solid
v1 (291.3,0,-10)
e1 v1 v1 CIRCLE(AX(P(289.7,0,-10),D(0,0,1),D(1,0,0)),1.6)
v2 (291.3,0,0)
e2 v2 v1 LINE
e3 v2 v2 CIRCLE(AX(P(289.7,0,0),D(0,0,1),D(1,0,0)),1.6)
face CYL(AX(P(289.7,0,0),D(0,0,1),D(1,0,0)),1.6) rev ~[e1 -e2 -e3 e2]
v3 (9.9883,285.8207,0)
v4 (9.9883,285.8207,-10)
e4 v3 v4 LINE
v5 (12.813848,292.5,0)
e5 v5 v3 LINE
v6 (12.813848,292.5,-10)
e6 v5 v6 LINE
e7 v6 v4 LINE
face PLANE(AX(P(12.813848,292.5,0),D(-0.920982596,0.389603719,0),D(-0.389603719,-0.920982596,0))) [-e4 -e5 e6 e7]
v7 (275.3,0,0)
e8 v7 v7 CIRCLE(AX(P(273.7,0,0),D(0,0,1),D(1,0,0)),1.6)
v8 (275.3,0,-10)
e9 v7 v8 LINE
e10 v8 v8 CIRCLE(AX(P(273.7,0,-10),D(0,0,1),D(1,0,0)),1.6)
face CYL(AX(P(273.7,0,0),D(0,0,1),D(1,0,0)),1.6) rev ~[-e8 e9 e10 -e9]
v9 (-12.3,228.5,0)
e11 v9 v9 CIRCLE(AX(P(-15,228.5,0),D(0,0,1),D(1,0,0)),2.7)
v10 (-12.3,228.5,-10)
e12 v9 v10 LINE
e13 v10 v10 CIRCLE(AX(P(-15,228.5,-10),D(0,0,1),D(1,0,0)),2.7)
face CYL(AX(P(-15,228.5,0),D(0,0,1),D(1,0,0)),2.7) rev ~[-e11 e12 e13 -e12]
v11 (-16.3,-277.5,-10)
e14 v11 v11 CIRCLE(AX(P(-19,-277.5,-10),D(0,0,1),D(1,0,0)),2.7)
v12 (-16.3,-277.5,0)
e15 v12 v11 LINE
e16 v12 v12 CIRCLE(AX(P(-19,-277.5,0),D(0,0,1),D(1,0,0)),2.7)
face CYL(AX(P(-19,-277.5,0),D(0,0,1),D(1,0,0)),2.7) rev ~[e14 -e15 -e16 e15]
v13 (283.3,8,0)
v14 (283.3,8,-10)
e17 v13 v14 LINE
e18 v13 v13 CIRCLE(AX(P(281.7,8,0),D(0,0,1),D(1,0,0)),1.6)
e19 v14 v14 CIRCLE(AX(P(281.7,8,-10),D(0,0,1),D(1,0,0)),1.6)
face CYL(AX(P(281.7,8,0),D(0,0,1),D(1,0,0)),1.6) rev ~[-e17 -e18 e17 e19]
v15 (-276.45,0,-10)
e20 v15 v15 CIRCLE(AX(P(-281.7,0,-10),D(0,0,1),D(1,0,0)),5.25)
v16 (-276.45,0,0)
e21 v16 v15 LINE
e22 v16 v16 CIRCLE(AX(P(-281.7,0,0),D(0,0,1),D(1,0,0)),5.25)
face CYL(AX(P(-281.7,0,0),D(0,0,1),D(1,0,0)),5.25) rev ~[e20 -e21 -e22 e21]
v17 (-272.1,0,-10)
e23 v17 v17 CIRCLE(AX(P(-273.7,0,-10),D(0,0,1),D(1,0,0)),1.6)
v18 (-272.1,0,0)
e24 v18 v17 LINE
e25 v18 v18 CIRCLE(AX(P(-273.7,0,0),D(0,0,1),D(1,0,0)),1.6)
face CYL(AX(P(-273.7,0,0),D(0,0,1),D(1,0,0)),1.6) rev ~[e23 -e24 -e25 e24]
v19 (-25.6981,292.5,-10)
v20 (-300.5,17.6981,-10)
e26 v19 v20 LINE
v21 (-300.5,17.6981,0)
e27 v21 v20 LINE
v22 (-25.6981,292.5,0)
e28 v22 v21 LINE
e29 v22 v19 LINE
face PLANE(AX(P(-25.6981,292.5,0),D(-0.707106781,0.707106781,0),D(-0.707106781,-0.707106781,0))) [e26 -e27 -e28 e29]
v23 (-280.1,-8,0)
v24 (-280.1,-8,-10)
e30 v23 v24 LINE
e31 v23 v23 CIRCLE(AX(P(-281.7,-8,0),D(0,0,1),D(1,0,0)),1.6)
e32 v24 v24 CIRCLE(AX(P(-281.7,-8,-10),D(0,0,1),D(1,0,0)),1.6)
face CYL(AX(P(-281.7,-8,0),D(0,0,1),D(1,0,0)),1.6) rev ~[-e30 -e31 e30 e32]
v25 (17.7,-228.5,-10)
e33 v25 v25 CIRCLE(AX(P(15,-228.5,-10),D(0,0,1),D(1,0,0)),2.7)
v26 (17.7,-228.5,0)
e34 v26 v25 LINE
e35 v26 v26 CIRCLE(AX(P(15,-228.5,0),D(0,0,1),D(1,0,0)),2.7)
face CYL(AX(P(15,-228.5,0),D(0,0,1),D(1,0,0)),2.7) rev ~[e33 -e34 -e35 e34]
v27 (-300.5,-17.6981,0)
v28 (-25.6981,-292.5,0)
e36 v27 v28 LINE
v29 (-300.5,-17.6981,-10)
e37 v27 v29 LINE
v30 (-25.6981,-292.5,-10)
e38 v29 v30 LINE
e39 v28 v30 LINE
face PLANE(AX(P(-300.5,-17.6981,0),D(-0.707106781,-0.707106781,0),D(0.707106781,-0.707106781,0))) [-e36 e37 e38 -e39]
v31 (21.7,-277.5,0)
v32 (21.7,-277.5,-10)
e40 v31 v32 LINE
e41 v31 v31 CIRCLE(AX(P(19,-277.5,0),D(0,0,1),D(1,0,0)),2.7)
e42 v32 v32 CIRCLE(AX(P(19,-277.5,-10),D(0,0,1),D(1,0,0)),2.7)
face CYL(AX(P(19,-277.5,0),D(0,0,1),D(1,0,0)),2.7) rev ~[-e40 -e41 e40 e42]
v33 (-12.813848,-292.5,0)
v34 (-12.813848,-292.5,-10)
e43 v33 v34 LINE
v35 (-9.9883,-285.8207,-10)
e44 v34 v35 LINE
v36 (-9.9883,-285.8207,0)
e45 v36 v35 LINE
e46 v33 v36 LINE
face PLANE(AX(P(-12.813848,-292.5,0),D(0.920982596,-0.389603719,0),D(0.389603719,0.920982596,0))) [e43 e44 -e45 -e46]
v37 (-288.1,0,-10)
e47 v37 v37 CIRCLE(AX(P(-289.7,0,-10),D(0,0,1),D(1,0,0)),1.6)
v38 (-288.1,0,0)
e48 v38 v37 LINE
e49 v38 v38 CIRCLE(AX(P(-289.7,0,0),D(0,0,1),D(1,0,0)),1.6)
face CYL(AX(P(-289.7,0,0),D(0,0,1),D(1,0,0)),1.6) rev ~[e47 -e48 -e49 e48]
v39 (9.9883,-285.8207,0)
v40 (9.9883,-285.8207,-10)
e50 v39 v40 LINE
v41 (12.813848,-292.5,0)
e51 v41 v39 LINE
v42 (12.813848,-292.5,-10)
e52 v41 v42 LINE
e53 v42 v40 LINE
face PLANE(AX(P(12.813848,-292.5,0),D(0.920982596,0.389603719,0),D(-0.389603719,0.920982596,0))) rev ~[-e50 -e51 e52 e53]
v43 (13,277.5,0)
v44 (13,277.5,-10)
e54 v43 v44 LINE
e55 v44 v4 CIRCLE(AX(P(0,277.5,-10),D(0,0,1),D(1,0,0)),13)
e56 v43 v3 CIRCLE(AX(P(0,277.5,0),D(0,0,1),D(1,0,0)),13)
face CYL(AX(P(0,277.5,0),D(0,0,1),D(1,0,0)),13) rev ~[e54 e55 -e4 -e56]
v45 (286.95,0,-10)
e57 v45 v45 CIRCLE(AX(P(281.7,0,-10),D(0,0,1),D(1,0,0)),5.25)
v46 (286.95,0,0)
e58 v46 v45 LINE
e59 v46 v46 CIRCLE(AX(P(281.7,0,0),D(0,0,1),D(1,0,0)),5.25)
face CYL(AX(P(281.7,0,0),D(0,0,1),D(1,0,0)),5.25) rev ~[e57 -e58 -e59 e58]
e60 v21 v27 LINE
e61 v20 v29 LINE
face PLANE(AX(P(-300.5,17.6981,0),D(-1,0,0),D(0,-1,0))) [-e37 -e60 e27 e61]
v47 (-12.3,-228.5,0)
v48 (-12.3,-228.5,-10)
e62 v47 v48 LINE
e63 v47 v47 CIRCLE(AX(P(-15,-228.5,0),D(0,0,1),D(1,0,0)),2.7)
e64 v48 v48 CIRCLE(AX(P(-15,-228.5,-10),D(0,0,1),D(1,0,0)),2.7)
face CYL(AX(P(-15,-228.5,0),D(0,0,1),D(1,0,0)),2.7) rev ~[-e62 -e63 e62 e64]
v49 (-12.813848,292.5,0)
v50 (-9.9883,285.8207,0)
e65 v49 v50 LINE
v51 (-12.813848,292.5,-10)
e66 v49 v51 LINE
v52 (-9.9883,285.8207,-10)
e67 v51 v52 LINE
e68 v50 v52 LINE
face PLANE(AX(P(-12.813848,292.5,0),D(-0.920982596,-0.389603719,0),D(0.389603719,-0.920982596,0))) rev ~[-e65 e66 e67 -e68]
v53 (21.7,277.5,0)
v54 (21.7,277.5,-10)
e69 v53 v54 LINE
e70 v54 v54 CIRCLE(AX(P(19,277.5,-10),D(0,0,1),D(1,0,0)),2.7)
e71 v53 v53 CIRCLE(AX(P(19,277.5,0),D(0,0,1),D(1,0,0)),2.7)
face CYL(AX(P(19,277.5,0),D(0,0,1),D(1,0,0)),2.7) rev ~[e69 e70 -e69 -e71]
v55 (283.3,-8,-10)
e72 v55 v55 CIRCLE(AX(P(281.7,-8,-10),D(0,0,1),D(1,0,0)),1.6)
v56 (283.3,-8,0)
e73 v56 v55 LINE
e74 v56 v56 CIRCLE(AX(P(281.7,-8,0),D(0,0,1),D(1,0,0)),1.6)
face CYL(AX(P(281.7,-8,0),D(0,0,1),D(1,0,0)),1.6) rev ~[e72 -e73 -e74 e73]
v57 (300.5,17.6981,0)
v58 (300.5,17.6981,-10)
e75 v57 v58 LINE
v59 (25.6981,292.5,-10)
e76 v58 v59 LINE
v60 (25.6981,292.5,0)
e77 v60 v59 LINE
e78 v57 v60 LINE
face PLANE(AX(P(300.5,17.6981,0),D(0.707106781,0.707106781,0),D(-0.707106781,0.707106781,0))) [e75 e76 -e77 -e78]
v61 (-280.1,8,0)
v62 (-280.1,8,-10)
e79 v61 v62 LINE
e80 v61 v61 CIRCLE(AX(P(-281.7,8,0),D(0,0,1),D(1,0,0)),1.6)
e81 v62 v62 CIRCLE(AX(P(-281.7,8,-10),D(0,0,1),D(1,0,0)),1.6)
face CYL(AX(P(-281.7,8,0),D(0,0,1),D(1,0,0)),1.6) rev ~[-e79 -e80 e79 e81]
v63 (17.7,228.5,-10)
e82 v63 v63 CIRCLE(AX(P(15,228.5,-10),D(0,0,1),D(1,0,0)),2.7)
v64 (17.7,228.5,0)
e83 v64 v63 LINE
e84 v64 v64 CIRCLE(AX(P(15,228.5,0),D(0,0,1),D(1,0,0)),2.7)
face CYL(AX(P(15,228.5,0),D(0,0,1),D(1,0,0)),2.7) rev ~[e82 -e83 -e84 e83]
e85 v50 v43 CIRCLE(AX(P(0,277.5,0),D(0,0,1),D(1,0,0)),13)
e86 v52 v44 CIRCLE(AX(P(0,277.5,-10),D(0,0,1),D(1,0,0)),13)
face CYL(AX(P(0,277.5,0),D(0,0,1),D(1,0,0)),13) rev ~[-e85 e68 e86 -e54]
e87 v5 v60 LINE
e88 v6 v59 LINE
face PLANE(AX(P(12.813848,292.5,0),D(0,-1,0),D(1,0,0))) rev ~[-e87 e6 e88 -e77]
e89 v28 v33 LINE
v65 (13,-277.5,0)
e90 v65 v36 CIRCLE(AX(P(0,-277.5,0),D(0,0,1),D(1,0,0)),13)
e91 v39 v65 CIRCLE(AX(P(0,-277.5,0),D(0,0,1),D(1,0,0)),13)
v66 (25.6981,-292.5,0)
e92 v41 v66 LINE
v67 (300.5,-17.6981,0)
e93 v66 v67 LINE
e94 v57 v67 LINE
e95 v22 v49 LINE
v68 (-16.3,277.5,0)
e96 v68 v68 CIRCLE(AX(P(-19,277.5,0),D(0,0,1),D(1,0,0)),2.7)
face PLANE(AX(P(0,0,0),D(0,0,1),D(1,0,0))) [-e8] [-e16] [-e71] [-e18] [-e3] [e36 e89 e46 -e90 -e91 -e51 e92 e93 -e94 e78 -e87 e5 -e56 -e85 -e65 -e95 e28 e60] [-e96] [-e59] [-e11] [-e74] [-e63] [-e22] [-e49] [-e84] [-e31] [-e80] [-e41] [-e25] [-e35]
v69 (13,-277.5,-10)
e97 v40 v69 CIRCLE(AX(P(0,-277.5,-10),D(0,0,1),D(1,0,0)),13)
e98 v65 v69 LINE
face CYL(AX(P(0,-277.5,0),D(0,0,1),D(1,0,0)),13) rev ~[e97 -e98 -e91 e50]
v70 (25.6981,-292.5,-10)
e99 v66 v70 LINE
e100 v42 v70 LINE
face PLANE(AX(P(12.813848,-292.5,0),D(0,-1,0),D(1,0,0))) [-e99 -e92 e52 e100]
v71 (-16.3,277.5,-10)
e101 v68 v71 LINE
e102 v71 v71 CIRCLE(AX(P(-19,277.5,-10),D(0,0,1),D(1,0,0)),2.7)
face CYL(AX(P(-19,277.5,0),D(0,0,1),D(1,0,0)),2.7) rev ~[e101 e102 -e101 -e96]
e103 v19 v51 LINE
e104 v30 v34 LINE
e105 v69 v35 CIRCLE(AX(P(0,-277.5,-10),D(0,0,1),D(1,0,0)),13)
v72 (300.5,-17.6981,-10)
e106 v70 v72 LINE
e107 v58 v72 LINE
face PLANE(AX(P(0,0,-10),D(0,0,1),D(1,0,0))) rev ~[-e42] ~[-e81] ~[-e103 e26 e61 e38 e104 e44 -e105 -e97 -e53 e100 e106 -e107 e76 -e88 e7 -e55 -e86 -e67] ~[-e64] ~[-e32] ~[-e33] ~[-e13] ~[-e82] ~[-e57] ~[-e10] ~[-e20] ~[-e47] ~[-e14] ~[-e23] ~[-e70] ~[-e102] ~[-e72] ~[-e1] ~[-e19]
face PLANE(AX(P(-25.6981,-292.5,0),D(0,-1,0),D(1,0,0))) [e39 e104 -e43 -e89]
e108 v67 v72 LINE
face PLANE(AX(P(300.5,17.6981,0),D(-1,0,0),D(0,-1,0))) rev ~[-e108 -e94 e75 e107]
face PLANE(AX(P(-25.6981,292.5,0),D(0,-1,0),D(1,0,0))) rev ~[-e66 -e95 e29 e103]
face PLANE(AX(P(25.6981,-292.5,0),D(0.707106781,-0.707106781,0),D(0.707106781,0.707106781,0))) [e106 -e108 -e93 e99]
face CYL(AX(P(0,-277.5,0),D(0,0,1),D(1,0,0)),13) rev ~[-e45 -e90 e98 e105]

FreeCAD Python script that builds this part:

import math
import FreeCAD as App
import Part
import Sketcher
Q = App.Units.Quantity

doc = App.newDocument("Part")
body = doc.addObject("PartDesign::Body", "Body")

# Sketch on XY plane
sketch1 = body.newObject("Sketcher::SketchObject", "Sketch")
sketch1.AttachmentSupport = (doc.getObject("XY_Plane"), [""])
sketch1.MapMode = "FlatFace"
sketch1.addGeometry(Part.ArcOfCircle(Part.Circle(App.Vector(0, 277.5, 0), App.Vector(0, 0, 1), 13), math.radians(140.204191), math.radians(399.795809)), False)
sketch1.addGeometry(Part.LineSegment(App.Vector(-9.9883, 285.8207, 0), App.Vector(-12.813848, 292.5, 0)), False)
sketch1.addGeometry(Part.LineSegment(App.Vector(-12.813848, 292.5, 0), App.Vector(-25.6981, 292.5, 0)), False)
sketch1.addGeometry(Part.LineSegment(App.Vector(-25.6981, 292.5, 0), App.Vector(-300.5, 17.6981, 0)), False)
sketch1.addGeometry(Part.LineSegment(App.Vector(-300.5, 17.6981, 0), App.Vector(-300.5, -17.6981, 0)), False)
sketch1.addGeometry(Part.LineSegment(App.Vector(-300.5, -17.6981, 0), App.Vector(-25.6981, -292.5, 0)), False)
sketch1.addGeometry(Part.LineSegment(App.Vector(-25.6981, -292.5, 0), App.Vector(-12.813848, -292.5, 0)), False)
sketch1.addGeometry(Part.LineSegment(App.Vector(-12.813848, -292.5, 0), App.Vector(-9.9883, -285.8207, 0)), False)
sketch1.addGeometry(Part.ArcOfCircle(Part.Circle(App.Vector(0, -277.5, 0), App.Vector(0, 0, 1), 13), math.radians(-39.795809), math.radians(219.795809)), False)
sketch1.addGeometry(Part.LineSegment(App.Vector(9.9883, -285.8207, 0), App.Vector(12.813848, -292.5, 0)), False)
sketch1.addGeometry(Part.LineSegment(App.Vector(12.813848, -292.5, 0), App.Vector(25.6981, -292.5, 0)), False)
sketch1.addGeometry(Part.LineSegment(App.Vector(25.6981, -292.5, 0), App.Vector(300.5, -17.6981, 0)), False)
sketch1.addGeometry(Part.LineSegment(App.Vector(300.5, -17.6981, 0), App.Vector(300.5, 17.6981, 0)), False)
sketch1.addGeometry(Part.LineSegment(App.Vector(300.5, 17.6981, 0), App.Vector(25.6981, 292.5, 0)), False)
sketch1.addGeometry(Part.LineSegment(App.Vector(25.6981, 292.5, 0), App.Vector(12.813848, 292.5, 0)), False)
sketch1.addGeometry(Part.LineSegment(App.Vector(12.813848, 292.5, 0), App.Vector(9.9883, 285.8207, 0)), False)
sketch1.addGeometry(Part.Circle(App.Vector(-19, -277.5, 0), App.Vector(0, 0, 1), 2.7), False)
sketch1.addGeometry(Part.Circle(App.Vector(-15, -228.5, 0), App.Vector(0, 0, 1), 2.7), False)
sketch1.addGeometry(Part.Circle(App.Vector(-281.7, -8, 0), App.Vector(0, 0, 1), 1.6), False)
sketch1.addGeometry(Part.Circle(App.Vector(19, -277.5, 0), App.Vector(0, 0, 1), 2.7), False)
sketch1.addGeometry(Part.Circle(App.Vector(15, -228.5, 0), App.Vector(0, 0, 1), 2.7), False)
sketch1.addGeometry(Part.Circle(App.Vector(281.7, -8, 0), App.Vector(0, 0, 1), 1.6), False)
sketch1.addGeometry(Part.Circle(App.Vector(-289.7, 0, 0), App.Vector(0, 0, 1), 1.6), False)
sketch1.addGeometry(Part.Circle(App.Vector(-281.7, 0, 0), App.Vector(0, 0, 1), 5.25), False)
sketch1.addGeometry(Part.Circle(App.Vector(-281.7, 8, 0), App.Vector(0, 0, 1), 1.6), False)
sketch1.addGeometry(Part.Circle(App.Vector(-273.7, 0, 0), App.Vector(0, 0, 1), 1.6), False)
sketch1.addGeometry(Part.Circle(App.Vector(-15, 228.5, 0), App.Vector(0, 0, 1), 2.7), False)
sketch1.addGeometry(Part.Circle(App.Vector(-19, 277.5, 0), App.Vector(0, 0, 1), 2.7), False)
sketch1.addGeometry(Part.Circle(App.Vector(273.7, 0, 0), App.Vector(0, 0, 1), 1.6), False)
sketch1.addGeometry(Part.Circle(App.Vector(281.7, 0, 0), App.Vector(0, 0, 1), 5.25), False)
sketch1.addGeometry(Part.Circle(App.Vector(281.7, 8, 0), App.Vector(0, 0, 1), 1.6), False)
sketch1.addGeometry(Part.Circle(App.Vector(289.7, 0, 0), App.Vector(0, 0, 1), 1.6), False)
sketch1.addGeometry(Part.Circle(App.Vector(15, 228.5, 0), App.Vector(0, 0, 1), 2.7), False)
sketch1.addGeometry(Part.Circle(App.Vector(19, 277.5, 0), App.Vector(0, 0, 1), 2.7), False)
sketch1.addConstraint(Sketcher.Constraint("Coincident", 0, 1, 1, 1))
sketch1.addConstraint(Sketcher.Constraint("Coincident", 1, 2, 2, 1))
sketch1.addConstraint(Sketcher.Constraint("Coincident", 2, 2, 3, 1))
sketch1.addConstraint(Sketcher.Constraint("Coincident", 3, 2, 4, 1))
sketch1.addConstraint(Sketcher.Constraint("Coincident", 4, 2, 5, 1))
sketch1.addConstraint(Sketcher.Constraint("Coincident", 5, 2, 6, 1))
sketch1.addConstraint(Sketcher.Constraint("Coincident", 6, 2, 7, 1))
sketch1.addConstraint(Sketcher.Constraint("Coincident", 7, 2, 8, 2))
sketch1.addConstraint(Sketcher.Constraint("Coincident", 8, 1, 9, 1))
sketch1.addConstraint(Sketcher.Constraint("Coincident", 9, 2, 10, 1))
sketch1.addConstraint(Sketcher.Constraint("Coincident", 10, 2, 11, 1))
sketch1.addConstraint(Sketcher.Constraint("Coincident", 11, 2, 12, 1))
sketch1.addConstraint(Sketcher.Constraint("Coincident", 12, 2, 13, 1))
sketch1.addConstraint(Sketcher.Constraint("Coincident", 13, 2, 14, 1))
sketch1.addConstraint(Sketcher.Constraint("Coincident", 14, 2, 15, 1))
sketch1.addConstraint(Sketcher.Constraint("Coincident", 15, 2, 0, 2))
sketch1.addConstraint(Sketcher.Constraint("Horizontal", 2))
sketch1.addConstraint(Sketcher.Constraint("Vertical", 4))
sketch1.addConstraint(Sketcher.Constraint("Horizontal", 6))
sketch1.addConstraint(Sketcher.Constraint("Horizontal", 10))
sketch1.addConstraint(Sketcher.Constraint("Vertical", 12))
sketch1.addConstraint(Sketcher.Constraint("Horizontal", 14))
sketch1.addConstraint(Sketcher.Constraint("Equal", 0, 8))
sketch1.addConstraint(Sketcher.Constraint("Equal", 16, 17))
sketch1.addConstraint(Sketcher.Constraint("Equal", 17, 19))
sketch1.addConstraint(Sketcher.Constraint("Equal", 19, 20))
sketch1.addConstraint(Sketcher.Constraint("Equal", 18, 21))
sketch1.addConstraint(Sketcher.Constraint("Equal", 21, 22))
sketch1.addConstraint(Sketcher.Constraint("Equal", 22, 24))
sketch1.addConstraint(Sketcher.Constraint("Equal", 24, 25))
sketch1.addConstraint(Sketcher.Constraint("Equal", 20, 26))
sketch1.addConstraint(Sketcher.Constraint("Equal", 26, 27))
sketch1.addConstraint(Sketcher.Constraint("Equal", 25, 28))
sketch1.addConstraint(Sketcher.Constraint("Equal", 23, 29))
sketch1.addConstraint(Sketcher.Constraint("Equal", 28, 30))
sketch1.addConstraint(Sketcher.Constraint("Equal", 30, 31))
sketch1.addConstraint(Sketcher.Constraint("Equal", 27, 32))
sketch1.addConstraint(Sketcher.Constraint("Equal", 32, 33))
sketch1.addConstraint(Sketcher.Constraint("Symmetric", 0, 3, 8, 3, -1, 1))
sketch1.addConstraint(Sketcher.Constraint("Symmetric", 21, 3, 24, 3, -1, 1))
sketch1.addConstraint(Sketcher.Constraint("Symmetric", 20, 3, 26, 3, -1, 1))
sketch1.addConstraint(Sketcher.Constraint("Symmetric", 19, 3, 27, 3, -1, 1))
sketch1.addConstraint(Sketcher.Constraint("Symmetric", 25, 3, 28, 3, -1, 1))
sketch1.addConstraint(Sketcher.Constraint("Symmetric", 23, 3, 29, 3, -1, 1))
sketch1.addConstraint(Sketcher.Constraint("Symmetric", 18, 3, 30, 3, -1, 1))
sketch1.addConstraint(Sketcher.Constraint("Symmetric", 22, 3, 31, 3, -1, 1))
sketch1.addConstraint(Sketcher.Constraint("Symmetric", 17, 3, 32, 3, -1, 1))
sketch1.addConstraint(Sketcher.Constraint("Symmetric", 16, 3, 33, 3, -1, 1))
sketch1.addConstraint(Sketcher.Constraint("Symmetric", 1, 2, 9, 2, -1, 1))
sketch1.addConstraint(Sketcher.Constraint("Symmetric", 3, 2, 11, 2, -1, 1))
sketch1.addConstraint(Sketcher.Constraint("Symmetric", 5, 2, 13, 2, -1, 1))
sketch1.addConstraint(Sketcher.Constraint("Symmetric", 16, 3, 19, 3, -2))
sketch1.addConstraint(Sketcher.Constraint("Symmetric", 17, 3, 20, 3, -2))
sketch1.addConstraint(Sketcher.Constraint("Symmetric", 18, 3, 21, 3, -2))
sketch1.addConstraint(Sketcher.Constraint("Symmetric", 7, 2, 8, 1, -2))
sketch1.addConstraint(Sketcher.Constraint("Symmetric", 6, 2, 9, 2, -2))
sketch1.addConstraint(Sketcher.Constraint("PointOnObject", 22, 3, -1))
sketch1.addConstraint(Sketcher.Constraint("PointOnObject", 23, 3, -1))
sketch1.addConstraint(Sketcher.Constraint("PointOnObject", 25, 3, -1))
sketch1.addConstraint(Sketcher.Constraint("Perpendicular", 3, 5))
sketch1.addConstraint(Sketcher.Constraint("Parallel", 1, 9))
sketch1.addConstraint(Sketcher.Constraint("Perpendicular", 5, 11))
sketch1.addConstraint(Sketcher.Constraint("Perpendicular", 11, 13))
sketch1.addConstraint(Sketcher.Constraint("Parallel", 7, 15))
sketch1.addConstraint(Sketcher.Constraint("Horizontal", 8, 3, 16, 3))
sketch1.addConstraint(Sketcher.Constraint("Horizontal", 4, 2, 11, 2))
sketch1.addConstraint(Sketcher.Constraint("Horizontal", 0, 1, 15, 2))
sketch1.addConstraint(Sketcher.Constraint("Vertical", 18, 3, 23, 3))
sketch1.addConstraint(Sketcher.Constraint("Vertical", 2, 2, 5, 2))
sketch1.addConstraint(Sketcher.Constraint("Radius", 0, Q("13 mm")))
sketch1.addConstraint(Sketcher.Constraint("Diameter", 16, Q("5.4 mm")))
sketch1.addConstraint(Sketcher.Constraint("Diameter", 18, Q("3.2 mm")))
sketch1.addConstraint(Sketcher.Constraint("Diameter", 23, Q("10.5 mm")))
sketch1.addConstraint(Sketcher.Constraint("DistanceX", 17, 3, -1, 1, Q("15 mm")))
sketch1.addConstraint(Sketcher.Constraint("DistanceY", 18, 3, -1, 1, Q("8 mm")))
sketch1.addConstraint(Sketcher.Constraint("DistanceX", 22, 3, 18, 3, Q("8 mm")))
sketch1.addConstraint(Sketcher.Constraint("DistanceX", 23, 3, 25, 3, Q("8 mm")))
sketch1.addConstraint(Sketcher.Constraint("DistanceY", 27, 3, 1, 2, Q("15 mm")))
sketch1.addConstraint(Sketcher.Constraint("DistanceY", -1, 1, 0, 3, Q("277.5 mm")))
sketch1.addConstraint(Sketcher.Constraint("DistanceX", 18, 3, -1, 1, Q("281.7 mm")))
sketch1.addConstraint(Sketcher.Constraint("DistanceX", 3, 2, 24, 3, Q("18.8 mm")))
sketch1.addConstraint(Sketcher.Constraint("DistanceX", 16, 3, -1, 1, Q("19 mm")))
sketch1.addConstraint(Sketcher.Constraint("DistanceY", 16, 3, 17, 3, Q("49 mm")))
sketch1.addConstraint(Sketcher.Constraint("Angle", 1, Q("112.9298 deg")))
sketch1.addConstraint(Sketcher.Constraint("DistanceX", 2, 2, 2, 1, Q("12.8843 mm")))
sketch1.addConstraint(Sketcher.Constraint("DistanceY", 4, 2, 4, 1, Q("35.3962 mm")))
pad1 = body.newObject("PartDesign::Pad", "Pad")
pad1.Profile = sketch1
pad1.Length = 10
pad1.Reversed = True

doc.recompute()
